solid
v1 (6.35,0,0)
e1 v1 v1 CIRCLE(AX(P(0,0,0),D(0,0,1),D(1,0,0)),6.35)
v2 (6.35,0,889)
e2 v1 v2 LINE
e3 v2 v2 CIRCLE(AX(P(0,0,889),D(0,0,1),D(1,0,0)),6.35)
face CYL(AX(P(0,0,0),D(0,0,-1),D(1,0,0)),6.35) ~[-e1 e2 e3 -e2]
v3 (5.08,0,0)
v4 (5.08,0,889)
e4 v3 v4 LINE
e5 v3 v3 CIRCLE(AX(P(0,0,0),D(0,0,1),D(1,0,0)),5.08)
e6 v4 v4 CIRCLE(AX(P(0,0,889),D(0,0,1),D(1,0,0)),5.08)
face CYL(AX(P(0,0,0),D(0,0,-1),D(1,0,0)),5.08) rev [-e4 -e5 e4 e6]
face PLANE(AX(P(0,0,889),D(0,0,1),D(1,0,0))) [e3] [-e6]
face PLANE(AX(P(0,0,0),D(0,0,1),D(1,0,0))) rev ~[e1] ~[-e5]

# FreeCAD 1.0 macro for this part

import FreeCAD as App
import Part
import Sketcher
from FreeCAD import Vector
Q = App.Units.Quantity

doc = App.newDocument("Part")
body = doc.addObject("PartDesign::Body", "Body")

# Sketch on XY plane
sketch1 = body.newObject("Sketcher::SketchObject", "Sketch")
sketch1.AttachmentSupport = (doc.getObject("XY_Plane"), [""])
sketch1.MapMode = "FlatFace"
sketch1.addGeometry(Part.Circle(Vector(0, 0, 0), Vector(0, 0, 1), 6), False)
sketch1.addGeometry(Part.Circle(Vector(0, 0, 0), Vector(0, 0, 1), 5), False)
sketch1.addConstraint(Sketcher.Constraint("Coincident", 0, 3, -1, 1))
sketch1.addConstraint(Sketcher.Constraint("Coincident", 1, 3, -1, 1))
sketch1.addConstraint(Sketcher.Constraint("Diameter", 0, Q("0.5 in")))
sketch1.addConstraint(Sketcher.Constraint("Diameter", 1, Q("0.4 in")))
pad1 = body.newObject("PartDesign::Pad", "Pad")
pad1.Profile = sketch1
pad1.Length = Q("35 in")

doc.recompute()
